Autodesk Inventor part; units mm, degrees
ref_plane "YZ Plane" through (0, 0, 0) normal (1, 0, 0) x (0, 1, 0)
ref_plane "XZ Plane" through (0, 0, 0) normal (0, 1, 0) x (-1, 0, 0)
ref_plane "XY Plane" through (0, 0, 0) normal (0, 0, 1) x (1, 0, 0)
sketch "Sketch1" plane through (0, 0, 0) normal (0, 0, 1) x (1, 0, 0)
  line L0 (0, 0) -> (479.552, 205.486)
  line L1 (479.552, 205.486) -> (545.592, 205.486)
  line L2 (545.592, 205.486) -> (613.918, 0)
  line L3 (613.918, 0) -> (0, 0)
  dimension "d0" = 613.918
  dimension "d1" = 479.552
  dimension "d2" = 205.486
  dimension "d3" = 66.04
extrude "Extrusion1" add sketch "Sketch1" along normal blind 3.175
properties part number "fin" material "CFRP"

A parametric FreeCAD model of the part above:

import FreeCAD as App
import Part
import Sketcher

V = App.Vector
Q = App.Units.Quantity

doc = App.newDocument("Part")
body = doc.addObject("PartDesign::Body", "Body")

# Sketch on XY plane
sketch1 = body.newObject("Sketcher::SketchObject", "Sketch")
sketch1.AttachmentSupport = (doc.getObject("XY_Plane"), [""])
sketch1.MapMode = "FlatFace"
sketch1.addGeometry(Part.LineSegment(V(480, 205, 0), V(0, 0, 0)), False)
sketch1.addGeometry(Part.LineSegment(V(0, 0, 0), V(614, 0, 0)), False)
sketch1.addGeometry(Part.LineSegment(V(614, 0, 0), V(546, 205, 0)), False)
sketch1.addGeometry(Part.LineSegment(V(546, 205, 0), V(480, 205, 0)), False)
sketch1.addConstraint(Sketcher.Constraint("Coincident", 0, 2, 1, 1))
sketch1.addConstraint(Sketcher.Constraint("Coincident", 1, 2, 2, 1))
sketch1.addConstraint(Sketcher.Constraint("Coincident", 2, 2, 3, 1))
sketch1.addConstraint(Sketcher.Constraint("Coincident", 3, 2, 0, 1))
sketch1.addConstraint(Sketcher.Constraint("Horizontal", 1))
sketch1.addConstraint(Sketcher.Constraint("Horizontal", 3))
sketch1.addConstraint(Sketcher.Constraint("Coincident", 0, 2, -1, 1))
sketch1.addConstraint(Sketcher.Constraint("DistanceX", 3, 2, 3, 1, Q("2.6 in")))
sketch1.addConstraint(Sketcher.Constraint("DistanceX", 1, 1, 1, 2, Q("24.17 in")))
sketch1.addConstraint(Sketcher.Constraint("DistanceY", -1, 1, 2, 2, Q("8.09 in")))
sketch1.addConstraint(Sketcher.Constraint("DistanceX", -1, 1, 3, 2, Q("18.88 in")))
pad1 = body.newObject("PartDesign::Pad", "Pad")
pad1.Profile = sketch1
pad1.Length = Q("0.125 in")

doc.recompute()
